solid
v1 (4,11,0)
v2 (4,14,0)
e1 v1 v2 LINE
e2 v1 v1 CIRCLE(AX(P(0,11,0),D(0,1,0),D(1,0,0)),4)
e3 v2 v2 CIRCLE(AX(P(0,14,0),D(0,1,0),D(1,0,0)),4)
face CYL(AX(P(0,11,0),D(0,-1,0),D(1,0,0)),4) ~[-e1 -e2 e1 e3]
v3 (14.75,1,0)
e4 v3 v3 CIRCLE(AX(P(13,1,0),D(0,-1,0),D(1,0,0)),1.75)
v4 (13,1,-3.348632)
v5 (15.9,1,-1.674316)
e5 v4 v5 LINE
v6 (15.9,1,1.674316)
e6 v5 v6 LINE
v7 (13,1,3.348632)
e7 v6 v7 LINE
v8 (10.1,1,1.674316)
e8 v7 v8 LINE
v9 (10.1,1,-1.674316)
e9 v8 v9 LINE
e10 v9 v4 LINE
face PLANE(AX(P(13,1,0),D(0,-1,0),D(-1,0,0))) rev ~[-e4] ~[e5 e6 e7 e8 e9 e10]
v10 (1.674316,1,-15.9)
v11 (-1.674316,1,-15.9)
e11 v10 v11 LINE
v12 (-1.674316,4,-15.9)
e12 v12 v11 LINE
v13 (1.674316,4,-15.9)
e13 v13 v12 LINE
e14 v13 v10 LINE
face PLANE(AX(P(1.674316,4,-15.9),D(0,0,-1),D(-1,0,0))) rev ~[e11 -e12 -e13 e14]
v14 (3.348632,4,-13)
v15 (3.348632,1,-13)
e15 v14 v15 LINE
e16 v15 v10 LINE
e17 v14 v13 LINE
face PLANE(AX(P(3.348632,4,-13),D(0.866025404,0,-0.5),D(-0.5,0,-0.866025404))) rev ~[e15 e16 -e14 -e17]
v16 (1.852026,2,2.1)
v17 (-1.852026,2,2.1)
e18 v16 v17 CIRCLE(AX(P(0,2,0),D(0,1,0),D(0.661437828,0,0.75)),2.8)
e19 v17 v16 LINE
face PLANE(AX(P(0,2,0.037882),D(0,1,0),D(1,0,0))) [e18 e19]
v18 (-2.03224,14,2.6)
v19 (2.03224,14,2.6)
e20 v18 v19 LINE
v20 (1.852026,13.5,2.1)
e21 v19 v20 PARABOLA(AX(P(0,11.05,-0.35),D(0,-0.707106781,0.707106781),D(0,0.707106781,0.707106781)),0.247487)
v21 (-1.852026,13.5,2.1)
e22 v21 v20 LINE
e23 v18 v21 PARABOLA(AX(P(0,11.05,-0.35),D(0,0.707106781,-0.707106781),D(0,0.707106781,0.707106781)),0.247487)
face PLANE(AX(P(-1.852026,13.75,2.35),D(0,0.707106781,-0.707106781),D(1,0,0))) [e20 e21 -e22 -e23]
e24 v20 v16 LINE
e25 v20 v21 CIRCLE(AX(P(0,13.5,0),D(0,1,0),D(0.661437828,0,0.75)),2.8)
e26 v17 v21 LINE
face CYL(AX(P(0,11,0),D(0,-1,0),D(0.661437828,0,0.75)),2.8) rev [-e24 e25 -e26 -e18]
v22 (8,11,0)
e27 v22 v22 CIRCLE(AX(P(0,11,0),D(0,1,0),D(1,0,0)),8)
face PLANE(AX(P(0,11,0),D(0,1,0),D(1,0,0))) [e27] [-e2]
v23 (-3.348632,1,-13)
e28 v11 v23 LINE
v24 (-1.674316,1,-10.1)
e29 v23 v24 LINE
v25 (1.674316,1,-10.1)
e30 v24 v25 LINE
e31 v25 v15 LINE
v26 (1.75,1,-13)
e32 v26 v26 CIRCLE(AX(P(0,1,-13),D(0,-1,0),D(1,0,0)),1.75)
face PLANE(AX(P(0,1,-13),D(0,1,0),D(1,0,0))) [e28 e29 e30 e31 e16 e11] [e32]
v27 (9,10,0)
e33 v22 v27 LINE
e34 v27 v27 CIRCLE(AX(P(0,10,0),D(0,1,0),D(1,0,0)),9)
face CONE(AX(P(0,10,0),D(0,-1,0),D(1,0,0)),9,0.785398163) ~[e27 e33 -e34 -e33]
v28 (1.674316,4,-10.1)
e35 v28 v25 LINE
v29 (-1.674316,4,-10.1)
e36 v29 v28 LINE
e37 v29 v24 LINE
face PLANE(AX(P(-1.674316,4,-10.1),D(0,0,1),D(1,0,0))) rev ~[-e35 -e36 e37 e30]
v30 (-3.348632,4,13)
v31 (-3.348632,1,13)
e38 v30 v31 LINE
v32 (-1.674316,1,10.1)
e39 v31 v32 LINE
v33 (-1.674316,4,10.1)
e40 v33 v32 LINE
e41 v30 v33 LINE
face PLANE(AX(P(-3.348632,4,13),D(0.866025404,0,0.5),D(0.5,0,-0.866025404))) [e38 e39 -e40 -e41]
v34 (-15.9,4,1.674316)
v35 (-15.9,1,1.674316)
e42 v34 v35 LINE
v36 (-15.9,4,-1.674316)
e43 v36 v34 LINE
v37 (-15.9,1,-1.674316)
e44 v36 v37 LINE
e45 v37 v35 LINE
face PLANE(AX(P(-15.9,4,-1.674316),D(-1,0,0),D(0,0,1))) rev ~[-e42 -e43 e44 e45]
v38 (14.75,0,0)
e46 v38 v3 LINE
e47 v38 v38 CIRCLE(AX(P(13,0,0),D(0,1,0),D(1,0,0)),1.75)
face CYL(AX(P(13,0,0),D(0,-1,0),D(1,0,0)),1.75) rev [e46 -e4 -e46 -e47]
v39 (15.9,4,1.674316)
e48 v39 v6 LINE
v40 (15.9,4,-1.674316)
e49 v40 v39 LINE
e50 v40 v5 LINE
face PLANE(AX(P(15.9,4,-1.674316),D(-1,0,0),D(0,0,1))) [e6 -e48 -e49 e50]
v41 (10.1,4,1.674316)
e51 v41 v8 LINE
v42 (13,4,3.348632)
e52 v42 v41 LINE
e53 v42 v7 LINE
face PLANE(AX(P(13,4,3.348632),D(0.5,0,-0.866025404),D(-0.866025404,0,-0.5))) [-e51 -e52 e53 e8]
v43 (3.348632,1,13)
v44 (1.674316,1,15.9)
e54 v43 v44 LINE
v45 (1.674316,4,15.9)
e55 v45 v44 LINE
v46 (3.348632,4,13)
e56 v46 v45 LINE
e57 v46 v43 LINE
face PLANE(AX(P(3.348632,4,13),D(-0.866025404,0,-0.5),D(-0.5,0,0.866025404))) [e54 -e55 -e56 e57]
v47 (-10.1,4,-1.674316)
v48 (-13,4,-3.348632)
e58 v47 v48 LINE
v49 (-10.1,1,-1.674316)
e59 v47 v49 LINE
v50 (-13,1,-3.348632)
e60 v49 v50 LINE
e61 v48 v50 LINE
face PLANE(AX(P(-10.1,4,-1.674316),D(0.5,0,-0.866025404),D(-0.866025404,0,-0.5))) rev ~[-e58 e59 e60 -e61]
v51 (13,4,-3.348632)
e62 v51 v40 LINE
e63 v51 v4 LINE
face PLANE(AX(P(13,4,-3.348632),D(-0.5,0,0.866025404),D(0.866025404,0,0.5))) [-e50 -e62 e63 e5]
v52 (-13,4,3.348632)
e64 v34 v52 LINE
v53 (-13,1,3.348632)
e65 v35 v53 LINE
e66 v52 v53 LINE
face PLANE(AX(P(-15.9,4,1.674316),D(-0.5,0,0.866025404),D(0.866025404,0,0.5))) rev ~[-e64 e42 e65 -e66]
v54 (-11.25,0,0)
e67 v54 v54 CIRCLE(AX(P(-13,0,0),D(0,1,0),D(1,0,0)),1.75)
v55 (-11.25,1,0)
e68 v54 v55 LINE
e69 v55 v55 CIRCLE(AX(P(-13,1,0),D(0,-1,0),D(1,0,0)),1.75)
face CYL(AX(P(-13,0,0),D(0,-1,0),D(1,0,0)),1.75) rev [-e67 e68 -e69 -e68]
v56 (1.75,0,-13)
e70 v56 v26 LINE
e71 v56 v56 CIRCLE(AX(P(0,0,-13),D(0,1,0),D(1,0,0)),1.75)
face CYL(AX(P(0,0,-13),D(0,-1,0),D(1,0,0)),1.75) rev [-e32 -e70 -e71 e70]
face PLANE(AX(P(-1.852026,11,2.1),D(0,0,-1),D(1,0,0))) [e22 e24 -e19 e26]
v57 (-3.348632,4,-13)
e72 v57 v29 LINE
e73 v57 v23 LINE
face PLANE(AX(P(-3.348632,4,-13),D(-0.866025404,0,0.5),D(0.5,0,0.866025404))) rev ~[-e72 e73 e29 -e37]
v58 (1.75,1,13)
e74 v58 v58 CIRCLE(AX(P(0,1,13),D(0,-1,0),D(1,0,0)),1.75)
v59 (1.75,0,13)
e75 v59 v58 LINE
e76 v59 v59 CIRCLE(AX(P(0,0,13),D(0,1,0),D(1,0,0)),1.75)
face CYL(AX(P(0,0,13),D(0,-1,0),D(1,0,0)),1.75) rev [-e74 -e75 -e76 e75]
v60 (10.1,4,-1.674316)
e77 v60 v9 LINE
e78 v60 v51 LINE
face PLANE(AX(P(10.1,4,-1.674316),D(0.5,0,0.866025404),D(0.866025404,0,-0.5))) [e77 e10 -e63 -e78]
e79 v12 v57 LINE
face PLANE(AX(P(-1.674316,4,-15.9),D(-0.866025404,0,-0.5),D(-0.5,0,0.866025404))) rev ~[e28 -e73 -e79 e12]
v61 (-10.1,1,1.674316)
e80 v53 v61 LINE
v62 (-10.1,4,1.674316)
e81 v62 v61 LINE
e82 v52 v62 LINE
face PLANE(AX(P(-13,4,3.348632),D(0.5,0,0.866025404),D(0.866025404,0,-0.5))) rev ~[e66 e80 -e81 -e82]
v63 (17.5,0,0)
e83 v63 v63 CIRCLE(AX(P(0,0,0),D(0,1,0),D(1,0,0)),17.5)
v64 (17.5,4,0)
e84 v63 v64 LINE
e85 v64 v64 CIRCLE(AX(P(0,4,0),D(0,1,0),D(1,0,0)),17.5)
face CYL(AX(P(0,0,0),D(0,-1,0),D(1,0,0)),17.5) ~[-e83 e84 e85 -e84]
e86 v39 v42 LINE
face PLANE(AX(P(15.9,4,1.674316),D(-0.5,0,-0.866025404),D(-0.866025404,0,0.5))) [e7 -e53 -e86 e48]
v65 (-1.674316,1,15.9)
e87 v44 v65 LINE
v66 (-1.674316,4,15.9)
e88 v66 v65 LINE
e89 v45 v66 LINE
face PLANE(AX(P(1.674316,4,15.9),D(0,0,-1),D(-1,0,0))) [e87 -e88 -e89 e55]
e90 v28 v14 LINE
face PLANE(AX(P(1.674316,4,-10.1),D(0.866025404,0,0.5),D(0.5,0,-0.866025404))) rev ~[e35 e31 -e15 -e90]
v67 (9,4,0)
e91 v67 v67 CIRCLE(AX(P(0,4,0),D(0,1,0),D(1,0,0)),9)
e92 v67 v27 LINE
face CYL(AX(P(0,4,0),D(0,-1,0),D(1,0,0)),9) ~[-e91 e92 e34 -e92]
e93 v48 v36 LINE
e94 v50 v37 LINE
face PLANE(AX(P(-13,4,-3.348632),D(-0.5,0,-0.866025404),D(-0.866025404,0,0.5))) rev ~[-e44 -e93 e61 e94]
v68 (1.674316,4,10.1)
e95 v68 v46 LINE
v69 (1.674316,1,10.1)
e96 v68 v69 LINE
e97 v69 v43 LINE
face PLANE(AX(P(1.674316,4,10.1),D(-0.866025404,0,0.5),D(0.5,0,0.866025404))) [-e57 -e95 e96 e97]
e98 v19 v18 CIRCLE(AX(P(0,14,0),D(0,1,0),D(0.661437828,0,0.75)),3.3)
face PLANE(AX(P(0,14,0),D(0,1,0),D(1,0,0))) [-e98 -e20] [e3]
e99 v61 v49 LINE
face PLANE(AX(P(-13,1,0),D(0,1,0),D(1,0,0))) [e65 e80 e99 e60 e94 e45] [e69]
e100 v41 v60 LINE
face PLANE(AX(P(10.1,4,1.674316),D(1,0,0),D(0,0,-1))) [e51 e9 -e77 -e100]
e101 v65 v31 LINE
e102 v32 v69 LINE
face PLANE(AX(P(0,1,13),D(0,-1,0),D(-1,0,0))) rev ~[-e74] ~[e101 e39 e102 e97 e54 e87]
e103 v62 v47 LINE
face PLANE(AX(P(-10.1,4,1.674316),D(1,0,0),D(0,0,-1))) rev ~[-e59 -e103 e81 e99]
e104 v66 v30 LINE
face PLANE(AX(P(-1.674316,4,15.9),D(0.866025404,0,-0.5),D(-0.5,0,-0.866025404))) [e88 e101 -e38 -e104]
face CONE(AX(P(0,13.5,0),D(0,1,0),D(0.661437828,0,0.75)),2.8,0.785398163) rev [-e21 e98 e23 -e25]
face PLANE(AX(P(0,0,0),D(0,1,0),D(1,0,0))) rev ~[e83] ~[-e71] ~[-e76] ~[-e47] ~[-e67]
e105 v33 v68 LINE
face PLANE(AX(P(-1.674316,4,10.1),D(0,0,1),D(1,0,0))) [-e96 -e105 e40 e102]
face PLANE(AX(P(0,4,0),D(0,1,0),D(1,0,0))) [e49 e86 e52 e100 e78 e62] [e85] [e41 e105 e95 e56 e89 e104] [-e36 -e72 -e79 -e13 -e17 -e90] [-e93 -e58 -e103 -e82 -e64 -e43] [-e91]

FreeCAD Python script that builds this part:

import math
import FreeCAD as App
import Part
import Sketcher
Q = App.Units.Quantity


def edges_at(feature, points):
    """Names of the edges that pass closest to the given points."""
    edges = feature.Shape.Edges
    near = lambda p: min(range(len(edges)), key=lambda i: edges[i].distToShape(Part.Vertex(*p))[0])
    return sorted({f"Edge{near(p) + 1}" for p in points})


def add_polygon(sketch, points):
    """Adds a closed chain of lines whose ends are joined by coincident constraints."""
    first, n = sketch.GeometryCount, len(points)
    for a, b in zip(points, points[1:] + points[:1]):
        sketch.addGeometry(Part.LineSegment(App.Vector(*a, 0), App.Vector(*b, 0)), False)
    for i in range(n):
        sketch.addConstraint(Sketcher.Constraint("Coincident", first + i, 2, first + (i + 1) % n, 1))

doc = App.newDocument("Part")
body = doc.addObject("PartDesign::Body", "Body")

# Sketch on XZ plane
sketch1 = body.newObject("Sketcher::SketchObject", "Sketch")
sketch1.AttachmentSupport = (doc.getObject("XZ_Plane"), [""])
sketch1.MapMode = "FlatFace"
sketch1.addGeometry([
    Part.Circle(App.Vector(0, 0, 0), App.Vector(0, 0, 1), 17.5),  # 0
    Part.Circle(App.Vector(0, 13, 0), App.Vector(0, 0, 1), 1.8),  # 1
    Part.Circle(App.Vector(-13, 0, 0), App.Vector(0, 0, 1), 1.8),  # 2
    Part.Circle(App.Vector(13, 0, 0), App.Vector(0, 0, 1), 1.8),  # 3
    Part.Circle(App.Vector(0, -13, 0), App.Vector(0, 0, 1), 1.8),  # 4
], False)
sketch1.addConstraint([
    Sketcher.Constraint("Coincident", 0, 3, -1, 1),
    Sketcher.Constraint("Equal", 1, 2),
    Sketcher.Constraint("Equal", 2, 3),
    Sketcher.Constraint("Equal", 3, 4),
    Sketcher.Constraint("Symmetric", 2, 3, 3, 3, -1, 1),
    Sketcher.Constraint("Symmetric", 1, 3, 4, 3, -1, 1),
    Sketcher.Constraint("PointOnObject", 1, 3, -2),
    Sketcher.Constraint("PointOnObject", 2, 3, -1),
    Sketcher.Constraint("Diameter", 0, 35.0),
    Sketcher.Constraint("Diameter", 1, 3.5),
    Sketcher.Constraint("DistanceY", -1, 1, 1, 3, 13.0),
    Sketcher.Constraint("DistanceX", 2, 3, -1, 1, 13.0),
])
pad1 = body.newObject("PartDesign::Pad", "Pad")
pad1.Profile = sketch1
pad1.Length = 4
pad1.Reversed = True

# Sketch on XZ plane
sketch2 = body.newObject("Sketcher::SketchObject", "Sketch001")
sketch2.AttachmentSupport = (doc.getObject("XZ_Plane"), [""])
sketch2.MapMode = "FlatFace"
sketch2.AttachmentOffset = App.Placement(App.Vector(0, 0, -4), App.Rotation())
add_polygon(sketch2, [(3.3, -13), (1.7, -15.9), (-1.7, -15.9), (-3.3, -13), (-1.7, -10.1), (1.7, -10.1)])  # lines 0-5
add_polygon(sketch2, [(-13, 3.3), (-10.1, 1.7), (-10.1, -1.7), (-13, -3.3), (-15.9, -1.7), (-15.9, 1.7)])  # lines 6-11
add_polygon(sketch2, [(13, 3.3), (15.9, 1.7), (15.9, -1.7), (13, -3.3), (10.1, -1.7), (10.1, 1.7)])  # lines 12-17
add_polygon(sketch2, [(3.3, 13), (1.7, 10.1), (-1.7, 10.1), (-3.3, 13), (-1.7, 15.9), (1.7, 15.9)])  # lines 18-23
sketch2.addConstraint([
    Sketcher.Constraint("Horizontal", 1),
    Sketcher.Constraint("Horizontal", 4),
    Sketcher.Constraint("Vertical", 7),
    Sketcher.Constraint("Vertical", 10),
    Sketcher.Constraint("Vertical", 13),
    Sketcher.Constraint("Vertical", 16),
    Sketcher.Constraint("Horizontal", 19),
    Sketcher.Constraint("Horizontal", 22),
    Sketcher.Constraint("Symmetric", 9, 2, 12, 2, -1, 1),
    Sketcher.Constraint("Symmetric", 11, 2, 14, 2, -1, 1),
    Sketcher.Constraint("Symmetric", 6, 2, 15, 2, -1, 1),
    Sketcher.Constraint("Symmetric", 8, 2, 17, 2, -1, 1),
    Sketcher.Constraint("Symmetric", 3, 2, 18, 2, -1, 1),
    Sketcher.Constraint("Symmetric", 5, 2, 20, 2, -1, 1),
    Sketcher.Constraint("Symmetric", 0, 2, 21, 2, -1, 1),
    Sketcher.Constraint("Symmetric", 2, 2, 23, 2, -1, 1),
    Sketcher.Constraint("Symmetric", 2, 2, 5, 2, -2),
    Sketcher.Constraint("Symmetric", 8, 2, 14, 2, -2),
    Sketcher.Constraint("Parallel", 0, 3),
    Sketcher.Constraint("Parallel", 2, 5),
    Sketcher.Constraint("Perpendicular", 3, 6),
    Sketcher.Constraint("Perpendicular", 5, 8),
    Sketcher.Constraint("Parallel", 6, 9),
    Sketcher.Constraint("Parallel", 8, 11),
    Sketcher.Constraint("Parallel", 11, 14),
    Sketcher.Constraint("Parallel", 14, 17),
    Sketcher.Constraint("Perpendicular", 17, 20),
    Sketcher.Constraint("Parallel", 20, 23),
    Sketcher.Constraint("Horizontal", 7, 2, 9, 2),
    Sketcher.Constraint("Horizontal", 6, 2, 10, 2),
    Sketcher.Constraint("Vertical", 1, 2, 3, 2),
    Sketcher.Constraint("Equal", 22, 7),
    Sketcher.Constraint("Equal", 5, 6),
    Sketcher.Constraint("Angle", 0, Q("-120 deg")),
    Sketcher.Constraint("DistanceY", 2, 2, -1, 1, 13.0),
    Sketcher.Constraint("DistanceX", 8, 2, -1, 1, 13.0),
    Sketcher.Constraint("DistanceY", 0, 2, -1, 1, 15.9),
    Sketcher.Constraint("DistanceX", 1, 2, 1, 1, 3.348632),
])
pocket1 = body.newObject("PartDesign::Pocket", "Pocket")
pocket1.Profile = sketch2
pocket1.Length = 3
pocket1.Reversed = True

# Sketch on XZ plane
sketch3 = body.newObject("Sketcher::SketchObject", "Sketch002")
sketch3.AttachmentSupport = (doc.getObject("XZ_Plane"), [""])
sketch3.MapMode = "FlatFace"
sketch3.AttachmentOffset = App.Placement(App.Vector(0, 0, -4), App.Rotation())
sketch3.addGeometry([
    Part.Circle(App.Vector(0, 0, 0), App.Vector(0, 0, 1), 9),
    Part.LineSegment(App.Vector(1.9, 2.1, 0), App.Vector(-1.9, 2.1, 0)),
    Part.ArcOfCircle(Part.Circle(App.Vector(0, 0, 0), App.Vector(0, 0, 1), 2.8), math.radians(131), math.radians(409)),
], False)
sketch3.addConstraint([
    Sketcher.Constraint("Coincident", 1, 1, 2, 2),
    Sketcher.Constraint("Coincident", 2, 1, 1, 2),
    Sketcher.Constraint("Horizontal", 1),
    Sketcher.Constraint("Coincident", 0, 3, -1, 1),
    Sketcher.Constraint("Coincident", 2, 3, -1, 1),
    Sketcher.Constraint("Diameter", 0, 18.0),
    Sketcher.Constraint("Radius", 2, 2.8),
    Sketcher.Constraint("DistanceY", -1, 1, 1, 1, 2.1),
])
pad2 = body.newObject("PartDesign::Pad", "Pad001")
pad2.Profile = sketch3
pad2.Length = 7
pad2.Reversed = True

# Sketch on XZ plane
sketch4 = body.newObject("Sketcher::SketchObject", "Sketch003")
sketch4.AttachmentSupport = (doc.getObject("XZ_Plane"), [""])
sketch4.MapMode = "FlatFace"
sketch4.AttachmentOffset = App.Placement(App.Vector(0, 0, -4), App.Rotation())
sketch4.addGeometry([
    Part.LineSegment(App.Vector(-1.9, 2.1, 0), App.Vector(1.9, 2.1, 0)),
    Part.ArcOfCircle(Part.Circle(App.Vector(0, 0, 0), App.Vector(0, 0, 1), 2.8), math.radians(131), math.radians(409)),
], False)
sketch4.addConstraint([
    Sketcher.Constraint("Coincident", 0, 1, 1, 1),
    Sketcher.Constraint("Coincident", 1, 2, 0, 2),
    Sketcher.Constraint("Horizontal", 0),
    Sketcher.Constraint("Coincident", 1, 3, -1, 1),
    Sketcher.Constraint("Radius", 1, 2.8),
    Sketcher.Constraint("DistanceY", -1, 1, 0, 1, 2.1),
])
pocket2 = body.newObject("PartDesign::Pocket", "Pocket001")
pocket2.Profile = sketch4
pocket2.Length = 2
pocket2.Reversed = True

# Sketch on XZ plane
sketch5 = body.newObject("Sketcher::SketchObject", "Sketch004")
sketch5.AttachmentSupport = (doc.getObject("XZ_Plane"), [""])
sketch5.MapMode = "FlatFace"
sketch5.AttachmentOffset = App.Placement(App.Vector(0, 0, -11), App.Rotation())
sketch5.addGeometry([
    Part.Circle(App.Vector(0, 0, 0), App.Vector(0, 0, 1), 4),
    Part.LineSegment(App.Vector(1.9, 2.1, 0), App.Vector(-1.9, 2.1, 0)),
    Part.ArcOfCircle(Part.Circle(App.Vector(0, 0, 0), App.Vector(0, 0, 1), 2.8), math.radians(131), math.radians(409)),
], False)
sketch5.addConstraint([
    Sketcher.Constraint("Coincident", 1, 1, 2, 2),
    Sketcher.Constraint("Coincident", 2, 1, 1, 2),
    Sketcher.Constraint("Horizontal", 1),
    Sketcher.Constraint("Coincident", 0, 3, -1, 1),
    Sketcher.Constraint("Coincident", 2, 3, -1, 1),
    Sketcher.Constraint("Diameter", 0, 8.0),
    Sketcher.Constraint("Radius", 2, 2.8),
    Sketcher.Constraint("DistanceY", -1, 1, 1, 1, 2.1),
])
pad3 = body.newObject("PartDesign::Pad", "Pad002")
pad3.Profile = sketch5
pad3.Length = 3
pad3.Reversed = True
doc.recompute()

chamfer = body.newObject("PartDesign::Chamfer", "Chamfer")
chamfer.Base = (pad3, edges_at(pad3, [(-9, 11, 0)]))
chamfer.Size = 1
doc.recompute()

chamfer2 = body.newObject("PartDesign::Chamfer", "Chamfer001")
chamfer2.Base = (chamfer, edges_at(chamfer, [(0, 14, -2.8), (0, 14, 2.1)]))
chamfer2.Size = 0.5

doc.recompute()
